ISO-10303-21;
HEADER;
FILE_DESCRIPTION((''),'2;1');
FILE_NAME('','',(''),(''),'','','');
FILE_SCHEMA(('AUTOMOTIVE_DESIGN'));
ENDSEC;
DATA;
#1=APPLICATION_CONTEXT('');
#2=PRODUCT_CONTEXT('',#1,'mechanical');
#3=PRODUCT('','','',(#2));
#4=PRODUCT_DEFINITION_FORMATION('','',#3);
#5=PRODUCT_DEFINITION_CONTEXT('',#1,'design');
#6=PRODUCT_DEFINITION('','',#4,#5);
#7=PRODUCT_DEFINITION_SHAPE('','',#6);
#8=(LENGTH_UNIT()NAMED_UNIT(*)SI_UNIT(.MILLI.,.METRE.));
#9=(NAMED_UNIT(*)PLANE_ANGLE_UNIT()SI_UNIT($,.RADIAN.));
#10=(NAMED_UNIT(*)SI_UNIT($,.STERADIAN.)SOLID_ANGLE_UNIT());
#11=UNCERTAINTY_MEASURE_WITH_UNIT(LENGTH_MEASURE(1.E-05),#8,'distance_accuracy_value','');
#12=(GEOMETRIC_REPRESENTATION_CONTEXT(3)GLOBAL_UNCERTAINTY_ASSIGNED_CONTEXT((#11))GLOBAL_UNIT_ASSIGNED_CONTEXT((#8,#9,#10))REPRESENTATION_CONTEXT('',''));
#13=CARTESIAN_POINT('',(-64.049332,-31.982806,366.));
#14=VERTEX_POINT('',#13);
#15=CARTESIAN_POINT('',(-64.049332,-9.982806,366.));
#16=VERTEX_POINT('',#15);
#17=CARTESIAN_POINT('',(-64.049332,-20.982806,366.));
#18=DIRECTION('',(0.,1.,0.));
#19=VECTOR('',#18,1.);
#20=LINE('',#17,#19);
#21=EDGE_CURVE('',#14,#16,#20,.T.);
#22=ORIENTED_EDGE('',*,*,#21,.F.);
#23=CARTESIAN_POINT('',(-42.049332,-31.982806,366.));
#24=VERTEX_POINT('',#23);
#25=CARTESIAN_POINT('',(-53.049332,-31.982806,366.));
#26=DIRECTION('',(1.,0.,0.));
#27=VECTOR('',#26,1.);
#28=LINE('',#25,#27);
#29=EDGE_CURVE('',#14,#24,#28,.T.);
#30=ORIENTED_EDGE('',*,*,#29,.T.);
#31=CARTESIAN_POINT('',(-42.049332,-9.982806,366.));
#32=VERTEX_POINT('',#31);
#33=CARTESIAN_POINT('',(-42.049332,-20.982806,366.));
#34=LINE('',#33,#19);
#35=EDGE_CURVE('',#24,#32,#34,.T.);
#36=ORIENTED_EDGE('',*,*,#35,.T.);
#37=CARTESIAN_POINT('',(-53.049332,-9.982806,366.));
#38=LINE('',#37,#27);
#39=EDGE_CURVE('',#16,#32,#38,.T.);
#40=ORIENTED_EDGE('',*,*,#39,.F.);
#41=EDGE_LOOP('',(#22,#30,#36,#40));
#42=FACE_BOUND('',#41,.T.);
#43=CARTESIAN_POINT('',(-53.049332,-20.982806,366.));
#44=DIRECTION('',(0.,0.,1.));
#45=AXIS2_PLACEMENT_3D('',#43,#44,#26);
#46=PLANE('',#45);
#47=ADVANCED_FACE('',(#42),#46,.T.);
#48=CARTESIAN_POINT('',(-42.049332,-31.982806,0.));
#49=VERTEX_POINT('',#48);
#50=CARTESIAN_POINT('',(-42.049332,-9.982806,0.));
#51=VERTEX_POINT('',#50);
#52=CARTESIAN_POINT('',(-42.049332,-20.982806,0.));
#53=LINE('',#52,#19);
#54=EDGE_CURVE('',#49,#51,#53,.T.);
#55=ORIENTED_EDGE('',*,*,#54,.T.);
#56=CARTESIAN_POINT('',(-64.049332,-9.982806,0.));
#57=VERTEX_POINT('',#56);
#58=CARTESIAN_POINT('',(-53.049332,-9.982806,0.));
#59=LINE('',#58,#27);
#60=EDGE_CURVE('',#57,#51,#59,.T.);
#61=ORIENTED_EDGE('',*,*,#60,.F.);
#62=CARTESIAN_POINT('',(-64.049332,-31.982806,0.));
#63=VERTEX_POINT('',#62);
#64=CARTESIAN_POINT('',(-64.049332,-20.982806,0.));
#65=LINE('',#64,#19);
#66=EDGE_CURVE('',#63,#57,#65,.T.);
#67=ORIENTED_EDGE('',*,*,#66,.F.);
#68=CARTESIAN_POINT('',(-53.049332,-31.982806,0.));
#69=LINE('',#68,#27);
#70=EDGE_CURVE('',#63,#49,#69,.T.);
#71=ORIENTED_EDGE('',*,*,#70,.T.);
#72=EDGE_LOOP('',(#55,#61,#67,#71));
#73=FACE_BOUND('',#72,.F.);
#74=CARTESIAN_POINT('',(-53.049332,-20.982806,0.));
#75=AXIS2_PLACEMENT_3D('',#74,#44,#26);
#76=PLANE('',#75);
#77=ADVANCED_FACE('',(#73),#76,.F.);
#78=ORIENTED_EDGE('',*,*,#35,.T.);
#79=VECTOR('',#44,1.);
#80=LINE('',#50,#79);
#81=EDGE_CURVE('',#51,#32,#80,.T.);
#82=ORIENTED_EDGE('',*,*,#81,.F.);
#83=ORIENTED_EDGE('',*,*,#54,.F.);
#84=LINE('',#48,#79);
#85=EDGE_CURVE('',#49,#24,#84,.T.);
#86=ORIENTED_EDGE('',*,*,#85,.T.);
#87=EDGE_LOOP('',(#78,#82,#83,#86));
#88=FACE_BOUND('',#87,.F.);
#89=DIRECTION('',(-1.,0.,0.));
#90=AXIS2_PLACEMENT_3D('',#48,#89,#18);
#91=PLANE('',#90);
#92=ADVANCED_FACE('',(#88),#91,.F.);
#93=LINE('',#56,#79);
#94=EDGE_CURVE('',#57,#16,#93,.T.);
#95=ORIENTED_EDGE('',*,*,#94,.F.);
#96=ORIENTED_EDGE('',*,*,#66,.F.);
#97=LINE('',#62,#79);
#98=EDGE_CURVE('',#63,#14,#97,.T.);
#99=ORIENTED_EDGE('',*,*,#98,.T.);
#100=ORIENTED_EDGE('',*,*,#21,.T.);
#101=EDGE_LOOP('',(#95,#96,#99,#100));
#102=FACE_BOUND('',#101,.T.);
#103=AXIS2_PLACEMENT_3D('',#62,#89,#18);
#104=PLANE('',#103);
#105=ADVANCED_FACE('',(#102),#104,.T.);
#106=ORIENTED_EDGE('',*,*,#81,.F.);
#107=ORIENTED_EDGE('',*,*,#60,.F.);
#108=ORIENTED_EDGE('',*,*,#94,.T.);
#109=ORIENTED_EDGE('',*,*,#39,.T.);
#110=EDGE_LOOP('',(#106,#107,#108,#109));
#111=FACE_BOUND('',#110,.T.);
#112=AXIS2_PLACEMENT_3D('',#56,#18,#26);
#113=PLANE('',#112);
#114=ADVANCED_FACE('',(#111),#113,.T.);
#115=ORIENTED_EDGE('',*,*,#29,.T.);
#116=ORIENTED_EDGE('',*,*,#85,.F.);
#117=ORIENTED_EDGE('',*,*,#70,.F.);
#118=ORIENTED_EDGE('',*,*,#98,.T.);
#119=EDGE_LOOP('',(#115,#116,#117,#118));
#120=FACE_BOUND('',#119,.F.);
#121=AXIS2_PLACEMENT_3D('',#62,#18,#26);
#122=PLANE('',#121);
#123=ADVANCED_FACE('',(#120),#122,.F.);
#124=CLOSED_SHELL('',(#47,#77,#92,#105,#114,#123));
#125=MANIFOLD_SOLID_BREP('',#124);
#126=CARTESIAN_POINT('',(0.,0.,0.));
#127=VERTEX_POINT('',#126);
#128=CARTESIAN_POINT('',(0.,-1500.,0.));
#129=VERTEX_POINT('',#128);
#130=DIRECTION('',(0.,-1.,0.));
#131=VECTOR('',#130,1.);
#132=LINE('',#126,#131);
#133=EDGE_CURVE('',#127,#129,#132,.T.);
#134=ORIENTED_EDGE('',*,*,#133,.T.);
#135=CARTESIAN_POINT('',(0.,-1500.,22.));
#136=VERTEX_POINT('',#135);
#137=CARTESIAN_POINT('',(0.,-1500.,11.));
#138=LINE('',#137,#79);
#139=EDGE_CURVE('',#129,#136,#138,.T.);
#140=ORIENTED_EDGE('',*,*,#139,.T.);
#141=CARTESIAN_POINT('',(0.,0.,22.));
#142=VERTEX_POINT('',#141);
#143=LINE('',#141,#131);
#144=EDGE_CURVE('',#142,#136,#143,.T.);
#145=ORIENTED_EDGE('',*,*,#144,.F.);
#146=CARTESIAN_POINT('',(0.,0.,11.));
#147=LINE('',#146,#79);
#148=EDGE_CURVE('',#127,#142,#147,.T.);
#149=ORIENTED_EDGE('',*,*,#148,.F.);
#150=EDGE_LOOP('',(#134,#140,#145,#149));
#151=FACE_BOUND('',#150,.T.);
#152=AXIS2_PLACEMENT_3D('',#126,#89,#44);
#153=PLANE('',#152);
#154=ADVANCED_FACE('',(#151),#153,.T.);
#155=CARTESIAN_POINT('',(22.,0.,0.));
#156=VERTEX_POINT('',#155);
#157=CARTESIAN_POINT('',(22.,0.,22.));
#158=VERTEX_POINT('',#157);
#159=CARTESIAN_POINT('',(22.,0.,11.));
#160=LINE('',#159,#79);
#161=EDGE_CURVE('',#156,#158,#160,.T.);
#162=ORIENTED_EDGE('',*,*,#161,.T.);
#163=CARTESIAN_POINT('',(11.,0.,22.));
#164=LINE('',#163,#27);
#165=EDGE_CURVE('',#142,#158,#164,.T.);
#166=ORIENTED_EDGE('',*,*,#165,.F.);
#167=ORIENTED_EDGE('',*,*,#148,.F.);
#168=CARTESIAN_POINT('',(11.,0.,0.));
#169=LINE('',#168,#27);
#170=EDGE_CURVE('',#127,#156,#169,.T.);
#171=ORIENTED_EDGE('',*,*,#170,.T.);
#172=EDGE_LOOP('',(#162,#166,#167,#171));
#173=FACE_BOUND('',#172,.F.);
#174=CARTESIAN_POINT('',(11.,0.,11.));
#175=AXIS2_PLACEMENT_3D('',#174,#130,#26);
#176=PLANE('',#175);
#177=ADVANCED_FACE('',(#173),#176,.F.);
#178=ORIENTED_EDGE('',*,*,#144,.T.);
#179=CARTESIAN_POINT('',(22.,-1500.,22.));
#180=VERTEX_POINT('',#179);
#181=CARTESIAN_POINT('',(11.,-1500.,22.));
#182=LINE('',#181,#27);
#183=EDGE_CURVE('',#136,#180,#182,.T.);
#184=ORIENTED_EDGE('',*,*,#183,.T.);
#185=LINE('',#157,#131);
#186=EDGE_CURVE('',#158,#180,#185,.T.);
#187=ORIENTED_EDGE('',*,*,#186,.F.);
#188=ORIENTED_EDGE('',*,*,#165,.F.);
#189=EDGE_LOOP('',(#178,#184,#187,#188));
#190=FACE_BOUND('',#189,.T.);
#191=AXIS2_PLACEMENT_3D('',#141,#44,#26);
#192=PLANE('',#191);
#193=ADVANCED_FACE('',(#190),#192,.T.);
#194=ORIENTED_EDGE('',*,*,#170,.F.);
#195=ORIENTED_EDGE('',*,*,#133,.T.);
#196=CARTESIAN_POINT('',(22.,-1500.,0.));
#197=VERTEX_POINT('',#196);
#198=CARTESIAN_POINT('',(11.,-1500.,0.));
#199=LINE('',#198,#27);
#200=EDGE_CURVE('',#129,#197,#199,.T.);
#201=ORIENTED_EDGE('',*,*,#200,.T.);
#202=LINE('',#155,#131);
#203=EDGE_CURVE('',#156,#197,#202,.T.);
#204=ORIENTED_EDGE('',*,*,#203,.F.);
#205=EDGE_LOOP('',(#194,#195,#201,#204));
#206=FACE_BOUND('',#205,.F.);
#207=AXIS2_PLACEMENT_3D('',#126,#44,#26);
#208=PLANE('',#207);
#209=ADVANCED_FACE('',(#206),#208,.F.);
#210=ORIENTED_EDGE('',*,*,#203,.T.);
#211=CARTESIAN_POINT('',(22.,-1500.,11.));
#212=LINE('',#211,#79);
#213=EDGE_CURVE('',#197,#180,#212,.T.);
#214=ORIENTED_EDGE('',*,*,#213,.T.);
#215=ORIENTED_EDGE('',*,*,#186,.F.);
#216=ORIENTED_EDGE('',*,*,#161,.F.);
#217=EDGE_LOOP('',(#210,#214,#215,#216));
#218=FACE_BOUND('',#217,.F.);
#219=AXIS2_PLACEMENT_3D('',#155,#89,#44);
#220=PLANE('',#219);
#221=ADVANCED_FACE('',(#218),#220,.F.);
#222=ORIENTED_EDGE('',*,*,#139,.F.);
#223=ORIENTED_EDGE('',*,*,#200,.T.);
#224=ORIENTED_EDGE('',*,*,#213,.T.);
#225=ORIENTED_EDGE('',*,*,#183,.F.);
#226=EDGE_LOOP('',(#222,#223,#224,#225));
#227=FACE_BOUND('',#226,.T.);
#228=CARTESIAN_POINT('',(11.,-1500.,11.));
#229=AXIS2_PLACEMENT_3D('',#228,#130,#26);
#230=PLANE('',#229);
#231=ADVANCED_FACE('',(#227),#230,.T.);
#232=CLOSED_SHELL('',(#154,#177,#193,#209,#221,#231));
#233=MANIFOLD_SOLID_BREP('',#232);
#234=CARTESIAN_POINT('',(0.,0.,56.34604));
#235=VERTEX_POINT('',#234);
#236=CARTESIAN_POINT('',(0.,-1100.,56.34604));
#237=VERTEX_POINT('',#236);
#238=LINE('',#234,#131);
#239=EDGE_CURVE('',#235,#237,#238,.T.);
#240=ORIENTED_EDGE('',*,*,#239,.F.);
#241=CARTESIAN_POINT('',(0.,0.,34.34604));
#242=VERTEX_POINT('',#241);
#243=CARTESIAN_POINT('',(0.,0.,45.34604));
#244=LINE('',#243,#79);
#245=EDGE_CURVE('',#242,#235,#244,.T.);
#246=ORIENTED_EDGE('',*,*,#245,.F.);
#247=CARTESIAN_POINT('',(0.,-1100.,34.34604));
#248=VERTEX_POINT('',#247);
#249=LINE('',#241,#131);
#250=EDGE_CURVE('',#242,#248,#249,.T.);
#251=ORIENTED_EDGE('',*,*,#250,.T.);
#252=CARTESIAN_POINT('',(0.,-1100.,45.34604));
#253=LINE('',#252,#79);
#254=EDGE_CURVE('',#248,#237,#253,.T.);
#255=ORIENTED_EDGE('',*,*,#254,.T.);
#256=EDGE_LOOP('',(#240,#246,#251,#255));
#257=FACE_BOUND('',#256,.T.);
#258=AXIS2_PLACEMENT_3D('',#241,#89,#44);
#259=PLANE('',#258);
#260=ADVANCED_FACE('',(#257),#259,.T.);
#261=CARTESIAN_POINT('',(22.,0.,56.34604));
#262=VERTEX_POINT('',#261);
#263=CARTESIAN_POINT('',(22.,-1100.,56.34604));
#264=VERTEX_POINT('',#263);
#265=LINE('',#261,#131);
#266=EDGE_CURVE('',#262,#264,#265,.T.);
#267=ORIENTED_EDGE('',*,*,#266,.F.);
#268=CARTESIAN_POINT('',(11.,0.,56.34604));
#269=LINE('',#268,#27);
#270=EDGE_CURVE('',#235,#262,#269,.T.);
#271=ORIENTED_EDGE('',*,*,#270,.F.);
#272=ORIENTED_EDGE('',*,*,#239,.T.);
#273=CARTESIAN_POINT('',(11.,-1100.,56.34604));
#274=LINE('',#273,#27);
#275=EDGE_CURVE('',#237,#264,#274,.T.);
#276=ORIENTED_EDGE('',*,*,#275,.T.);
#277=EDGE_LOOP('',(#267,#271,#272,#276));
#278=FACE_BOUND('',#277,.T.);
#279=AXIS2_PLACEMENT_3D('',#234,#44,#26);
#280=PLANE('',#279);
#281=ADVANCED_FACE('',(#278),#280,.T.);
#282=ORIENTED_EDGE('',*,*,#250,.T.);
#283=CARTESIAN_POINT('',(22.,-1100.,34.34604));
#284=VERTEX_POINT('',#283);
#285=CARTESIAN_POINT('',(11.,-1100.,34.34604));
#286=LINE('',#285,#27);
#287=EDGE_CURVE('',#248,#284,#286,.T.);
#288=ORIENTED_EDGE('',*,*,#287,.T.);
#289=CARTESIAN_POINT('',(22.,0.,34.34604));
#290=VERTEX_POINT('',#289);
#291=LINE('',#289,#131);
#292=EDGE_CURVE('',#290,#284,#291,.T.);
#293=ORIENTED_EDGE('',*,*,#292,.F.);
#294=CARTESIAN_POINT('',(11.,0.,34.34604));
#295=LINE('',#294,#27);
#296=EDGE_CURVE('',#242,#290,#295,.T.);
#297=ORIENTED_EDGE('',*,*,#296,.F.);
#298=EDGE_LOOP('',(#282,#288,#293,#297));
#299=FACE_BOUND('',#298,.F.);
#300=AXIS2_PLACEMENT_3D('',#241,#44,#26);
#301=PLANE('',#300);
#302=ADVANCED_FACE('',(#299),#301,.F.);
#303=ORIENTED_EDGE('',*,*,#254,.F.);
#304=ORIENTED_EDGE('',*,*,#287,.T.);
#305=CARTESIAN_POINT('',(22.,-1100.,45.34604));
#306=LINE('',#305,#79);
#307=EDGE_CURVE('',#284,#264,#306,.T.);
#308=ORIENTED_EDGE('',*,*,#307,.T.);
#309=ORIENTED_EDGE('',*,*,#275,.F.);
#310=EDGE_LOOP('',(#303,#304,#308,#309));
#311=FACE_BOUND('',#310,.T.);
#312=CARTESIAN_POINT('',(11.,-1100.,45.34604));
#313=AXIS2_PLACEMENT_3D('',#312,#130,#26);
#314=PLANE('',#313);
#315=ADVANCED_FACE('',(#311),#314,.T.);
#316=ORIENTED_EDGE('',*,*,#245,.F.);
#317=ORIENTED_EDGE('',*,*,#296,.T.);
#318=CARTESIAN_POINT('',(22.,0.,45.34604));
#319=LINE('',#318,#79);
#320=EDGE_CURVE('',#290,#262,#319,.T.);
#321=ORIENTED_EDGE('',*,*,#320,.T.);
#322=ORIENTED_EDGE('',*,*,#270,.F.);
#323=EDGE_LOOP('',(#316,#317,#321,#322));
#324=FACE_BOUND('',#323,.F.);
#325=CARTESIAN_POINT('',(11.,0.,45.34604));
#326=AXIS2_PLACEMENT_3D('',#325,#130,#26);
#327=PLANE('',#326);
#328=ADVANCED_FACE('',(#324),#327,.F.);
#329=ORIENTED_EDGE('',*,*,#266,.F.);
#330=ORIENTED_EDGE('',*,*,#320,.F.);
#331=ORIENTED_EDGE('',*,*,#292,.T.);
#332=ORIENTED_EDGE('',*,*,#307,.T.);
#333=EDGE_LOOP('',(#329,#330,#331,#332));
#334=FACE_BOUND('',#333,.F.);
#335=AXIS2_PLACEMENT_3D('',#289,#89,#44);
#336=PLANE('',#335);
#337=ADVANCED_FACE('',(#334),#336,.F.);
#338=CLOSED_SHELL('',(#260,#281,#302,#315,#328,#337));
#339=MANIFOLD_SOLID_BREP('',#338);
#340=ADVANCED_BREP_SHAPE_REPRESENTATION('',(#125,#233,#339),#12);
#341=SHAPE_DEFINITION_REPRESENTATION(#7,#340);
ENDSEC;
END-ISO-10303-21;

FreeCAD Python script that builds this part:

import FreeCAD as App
import Part
import Sketcher
from FreeCAD import Vector


def add_polygon(sketch, points):
    """Adds a closed chain of lines whose ends are joined by coincident constraints."""
    first, n = sketch.GeometryCount, len(points)
    for a, b in zip(points, points[1:] + points[:1]):
        sketch.addGeometry(Part.LineSegment(App.Vector(*a, 0), App.Vector(*b, 0)), False)
    for i in range(n):
        sketch.addConstraint(Sketcher.Constraint("Coincident", first + i, 2, first + (i + 1) % n, 1))

doc = App.newDocument("Part")
body = doc.addObject("PartDesign::Body", "Body")

# Sketch on XZ plane
sketch1 = doc.addObject("Sketcher::SketchObject", "Sketch")
body.addObject(sketch1)
sketch1.AttachmentSupport = (doc.XZ_Plane, [""])
sketch1.MapMode = "FlatFace"
add_polygon(sketch1, [(0, 22), (0, 0), (22, 0), (22, 22)])  # lines 0-3
sketch1.addConstraint([
    Sketcher.Constraint("Vertical", 0),
    Sketcher.Constraint("Horizontal", 1),
    Sketcher.Constraint("Vertical", 2),
    Sketcher.Constraint("Horizontal", 3),
    Sketcher.Constraint("Coincident", 0, 2, -1, 1),
    Sketcher.Constraint("Equal", 3, 0),
    Sketcher.Constraint("DistanceX", 1, 1, 1, 2, 22.0),
])
pad1 = doc.addObject("PartDesign::Pad", "Pad")
body.addObject(pad1)
pad1.Profile = sketch1
pad1.Length = 1500
body2 = doc.addObject("PartDesign::Body", "Body001")

# Sketch on XY plane
sketch2 = doc.addObject("Sketcher::SketchObject", "Sketch001")
body2.addObject(sketch2)
sketch2.AttachmentSupport = (doc.getObject("XY_Plane001"), [""])
sketch2.MapMode = "FlatFace"
add_polygon(sketch2, [(-64.049332, -9.982806), (-64.049332, -31.982806), (-42.049332, -31.982806), (-42.049332, -9.982806)])  # lines 0-3
sketch2.addConstraint([
    Sketcher.Constraint("Vertical", 0),
    Sketcher.Constraint("Horizontal", 1),
    Sketcher.Constraint("Vertical", 2),
    Sketcher.Constraint("Horizontal", 3),
    Sketcher.Constraint("Equal", 3, 0),
    Sketcher.Constraint("DistanceX", 1, 1, 1, 2, 22.0),
    Sketcher.Constraint("DistanceX", 0, 2, -1, 1, 64.049332),
    Sketcher.Constraint("DistanceY", 0, 2, -1, 1, 31.982806),
])
pad2 = doc.addObject("PartDesign::Pad", "Pad001")
body2.addObject(pad2)
pad2.Profile = sketch2
pad2.Length = 366
body3 = doc.addObject("PartDesign::Body", "Body002")

# Sketch on XZ plane
sketch3 = doc.addObject("Sketcher::SketchObject", "Sketch002")
body3.addObject(sketch3)
sketch3.AttachmentSupport = (doc.getObject("XZ_Plane002"), [""])
sketch3.MapMode = "FlatFace"
add_polygon(sketch3, [(0, 56.34604), (0, 34.34604), (22, 34.34604), (22, 56.34604)])  # lines 0-3
sketch3.addConstraint([
    Sketcher.Constraint("Vertical", 0),
    Sketcher.Constraint("Horizontal", 1),
    Sketcher.Constraint("Vertical", 2),
    Sketcher.Constraint("Horizontal", 3),
    Sketcher.Constraint("PointOnObject", 0, 2, -2),
    Sketcher.Constraint("Equal", 3, 0),
    Sketcher.Constraint("DistanceX", 1, 1, 1, 2, 22.0),
    Sketcher.Constraint("DistanceY", -1, 1, 0, 2, 34.34604),
])
pad3 = doc.addObject("PartDesign::Pad", "Pad002")
body3.addObject(pad3)
pad3.Profile = sketch3
pad3.Length = 1100

doc.recompute()
